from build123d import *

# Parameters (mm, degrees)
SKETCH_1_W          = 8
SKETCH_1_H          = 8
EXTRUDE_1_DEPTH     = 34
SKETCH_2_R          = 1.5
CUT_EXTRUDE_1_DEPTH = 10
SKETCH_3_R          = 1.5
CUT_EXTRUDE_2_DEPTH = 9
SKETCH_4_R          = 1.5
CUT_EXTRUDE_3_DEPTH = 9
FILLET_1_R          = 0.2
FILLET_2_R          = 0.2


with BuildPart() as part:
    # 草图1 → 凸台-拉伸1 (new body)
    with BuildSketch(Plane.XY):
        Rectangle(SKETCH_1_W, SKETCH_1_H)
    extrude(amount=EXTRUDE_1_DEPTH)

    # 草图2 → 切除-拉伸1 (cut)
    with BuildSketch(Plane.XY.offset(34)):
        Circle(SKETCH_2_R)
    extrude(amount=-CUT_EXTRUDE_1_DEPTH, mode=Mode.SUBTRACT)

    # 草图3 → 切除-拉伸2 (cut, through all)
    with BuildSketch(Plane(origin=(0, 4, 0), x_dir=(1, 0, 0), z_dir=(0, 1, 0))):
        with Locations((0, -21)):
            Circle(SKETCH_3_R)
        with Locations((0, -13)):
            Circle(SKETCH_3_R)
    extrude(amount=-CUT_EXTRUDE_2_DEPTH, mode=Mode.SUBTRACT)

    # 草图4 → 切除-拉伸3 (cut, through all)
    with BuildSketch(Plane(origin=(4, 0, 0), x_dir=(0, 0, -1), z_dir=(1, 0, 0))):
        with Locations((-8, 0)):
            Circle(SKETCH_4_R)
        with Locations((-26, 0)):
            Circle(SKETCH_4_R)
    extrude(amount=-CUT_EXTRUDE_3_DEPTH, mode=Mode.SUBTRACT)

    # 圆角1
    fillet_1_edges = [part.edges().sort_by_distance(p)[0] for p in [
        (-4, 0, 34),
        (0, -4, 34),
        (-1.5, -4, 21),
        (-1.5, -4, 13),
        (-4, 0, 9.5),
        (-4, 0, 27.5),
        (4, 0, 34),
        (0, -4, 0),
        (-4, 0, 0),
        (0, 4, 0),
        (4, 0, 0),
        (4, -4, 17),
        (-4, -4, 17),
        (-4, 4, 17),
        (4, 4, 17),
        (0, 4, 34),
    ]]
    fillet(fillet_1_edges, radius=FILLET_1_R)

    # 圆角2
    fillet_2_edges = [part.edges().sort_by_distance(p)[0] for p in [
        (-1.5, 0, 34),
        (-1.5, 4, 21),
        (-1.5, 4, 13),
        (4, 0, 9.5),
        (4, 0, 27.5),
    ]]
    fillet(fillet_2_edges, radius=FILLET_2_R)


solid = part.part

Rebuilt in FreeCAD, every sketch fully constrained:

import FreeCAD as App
import Part
import Sketcher
from FreeCAD import Vector


def edges_at(feature, points):
    """Names of the edges that pass closest to the given points."""
    edges = feature.Shape.Edges
    near = lambda p: min(range(len(edges)), key=lambda i: edges[i].distToShape(Part.Vertex(*p))[0])
    return sorted({f"Edge{near(p) + 1}" for p in points})

doc = App.newDocument("Part")
params = doc.addObject("Spreadsheet::Sheet", "Params")
for row, (alias, value) in enumerate([
    ("sketch1_width", "8 mm"),
    ("pad1_length", "34 mm"),
    ("sketch2_diameter", "3 mm"),
    ("pocket1_length", "10 mm"),
    ("sketch3_diameter", "3 mm"),
    ("sketch4_diameter", "3 mm"),
    ("fillet_radius", "0.2 mm"),
    ("fillet2_radius", "0.2 mm"),
], start=1):
    params.set(f"A{row}", alias)
    params.set(f"B{row}", "=" + value)
    params.setAlias(f"B{row}", alias)

body = doc.addObject("PartDesign::Body", "Body")

sketch1 = body.newObject("Sketcher::SketchObject", "Sketch")
sketch1.AttachmentSupport = (doc.getObject("XY_Plane"), [""])
sketch1.MapMode = "FlatFace"
sketch1.addGeometry([
    Part.LineSegment(Vector(-4, 4, 0), Vector(-4, -4, 0)),
    Part.LineSegment(Vector(-4, -4, 0), Vector(4, -4, 0)),
    Part.LineSegment(Vector(4, -4, 0), Vector(4, 4, 0)),
    Part.LineSegment(Vector(4, 4, 0), Vector(-4, 4, 0)),
], False)
sketch1.addConstraint([
    Sketcher.Constraint("Coincident", 0, 2, 1, 1),
    Sketcher.Constraint("Coincident", 1, 2, 2, 1),
    Sketcher.Constraint("Coincident", 2, 2, 3, 1),
    Sketcher.Constraint("Coincident", 3, 2, 0, 1),
    Sketcher.Constraint("Vertical", 0),
    Sketcher.Constraint("Horizontal", 1),
    Sketcher.Constraint("Vertical", 2),
    Sketcher.Constraint("Horizontal", 3),
    Sketcher.Constraint("Symmetric", 0, 2, 2, 2, -1, 1),
    Sketcher.Constraint("Equal", 3, 0),
    Sketcher.Constraint("DistanceX", 1, 1, 1, 2, 8.0),
])
sketch1.setExpression("Constraints[10]", "Params.sketch1_width")
pad1 = body.newObject("PartDesign::Pad", "Pad")
pad1.Profile = sketch1
pad1.setExpression("Length", "Params.pad1_length")

sketch2 = body.newObject("Sketcher::SketchObject", "Sketch001")
sketch2.AttachmentSupport = (doc.getObject("XY_Plane"), [""])
sketch2.MapMode = "FlatFace"
sketch2.AttachmentOffset = App.Placement(Vector(0, 0, 34), App.Rotation())
sketch2.addGeometry(Part.Circle(Vector(0, 0, 0), Vector(0, 0, 1), 1.5), False)
sketch2.addConstraint([
    Sketcher.Constraint("Coincident", 0, 3, -1, 1),
    Sketcher.Constraint("Diameter", 0, 3.0),
])
sketch2.setExpression("Constraints[1]", "Params.sketch2_diameter")
pocket1 = body.newObject("PartDesign::Pocket", "Pocket")
pocket1.Profile = sketch2
pocket1.setExpression("Length", "Params.pocket1_length")

sketch3 = body.newObject("Sketcher::SketchObject", "Sketch002")
sketch3.AttachmentSupport = (doc.getObject("XZ_Plane"), [""])
sketch3.MapMode = "FlatFace"
sketch3.AttachmentOffset = App.Placement(Vector(0, 0, -4), App.Rotation())
sketch3.addGeometry([
    Part.Circle(Vector(0, 21, 0), Vector(0, 0, 1), 1.5),
    Part.Circle(Vector(0, 13, 0), Vector(0, 0, 1), 1.5),
], False)
sketch3.addConstraint([
    Sketcher.Constraint("Equal", 0, 1),
    Sketcher.Constraint("PointOnObject", 0, 3, -2),
    Sketcher.Constraint("PointOnObject", 1, 3, -2),
    Sketcher.Constraint("Diameter", 0, 3.0),
    Sketcher.Constraint("DistanceY", -1, 1, 0, 3, 21.0),
    Sketcher.Constraint("DistanceY", -1, 1, 1, 3, 13.0),
])
sketch3.setExpression("Constraints[3]", "Params.sketch3_diameter")
pocket2 = body.newObject("PartDesign::Pocket", "Pocket001")
pocket2.Profile = sketch3
pocket2.Type = "ThroughAll"
pocket2.Reversed = True

sketch4 = body.newObject("Sketcher::SketchObject", "Sketch003")
sketch4.AttachmentSupport = (doc.getObject("YZ_Plane"), [""])
sketch4.MapMode = "FlatFace"
sketch4.AttachmentOffset = App.Placement(Vector(0, 0, 4), App.Rotation())
sketch4.addGeometry([
    Part.Circle(Vector(0, 8, 0), Vector(0, 0, 1), 1.5),
    Part.Circle(Vector(0, 26, 0), Vector(0, 0, 1), 1.5),
], False)
sketch4.addConstraint([
    Sketcher.Constraint("Equal", 0, 1),
    Sketcher.Constraint("PointOnObject", 0, 3, -2),
    Sketcher.Constraint("PointOnObject", 1, 3, -2),
    Sketcher.Constraint("Diameter", 0, 3.0),
    Sketcher.Constraint("DistanceY", -1, 1, 0, 3, 8.0),
    Sketcher.Constraint("DistanceY", -1, 1, 1, 3, 26.0),
])
sketch4.setExpression("Constraints[3]", "Params.sketch4_diameter")
pocket3 = body.newObject("PartDesign::Pocket", "Pocket002")
pocket3.Profile = sketch4
pocket3.Type = "ThroughAll"
doc.recompute()

fillet = body.newObject("PartDesign::Fillet", "Fillet")
fillet.Base = (pocket3, edges_at(pocket3, [
    (-4, 0, 34),
    (0, -4, 34),
    (-1.5, -4, 21),
    (-1.5, -4, 13),
    (-4, 0, 9.5),
    (-4, 0, 27.5),
    (4, 0, 34),
    (0, -4, 0),
    (-4, 0, 0),
    (0, 4, 0),
    (4, 0, 0),
    (4, -4, 17),
    (-4, -4, 17),
    (-4, 4, 17),
    (4, 4, 17),
    (0, 4, 34),
]))
fillet.setExpression("Radius", "Params.fillet_radius")
doc.recompute()

fillet2 = body.newObject("PartDesign::Fillet", "Fillet001")
fillet2.Base = (fillet, edges_at(fillet, [
    (-1.5, 0, 34),
    (-1.5, 4, 21),
    (-1.5, 4, 13),
    (4, 0, 9.5),
    (4, 0, 27.5),
]))
fillet2.setExpression("Radius", "Params.fillet2_radius")

doc.recompute()
